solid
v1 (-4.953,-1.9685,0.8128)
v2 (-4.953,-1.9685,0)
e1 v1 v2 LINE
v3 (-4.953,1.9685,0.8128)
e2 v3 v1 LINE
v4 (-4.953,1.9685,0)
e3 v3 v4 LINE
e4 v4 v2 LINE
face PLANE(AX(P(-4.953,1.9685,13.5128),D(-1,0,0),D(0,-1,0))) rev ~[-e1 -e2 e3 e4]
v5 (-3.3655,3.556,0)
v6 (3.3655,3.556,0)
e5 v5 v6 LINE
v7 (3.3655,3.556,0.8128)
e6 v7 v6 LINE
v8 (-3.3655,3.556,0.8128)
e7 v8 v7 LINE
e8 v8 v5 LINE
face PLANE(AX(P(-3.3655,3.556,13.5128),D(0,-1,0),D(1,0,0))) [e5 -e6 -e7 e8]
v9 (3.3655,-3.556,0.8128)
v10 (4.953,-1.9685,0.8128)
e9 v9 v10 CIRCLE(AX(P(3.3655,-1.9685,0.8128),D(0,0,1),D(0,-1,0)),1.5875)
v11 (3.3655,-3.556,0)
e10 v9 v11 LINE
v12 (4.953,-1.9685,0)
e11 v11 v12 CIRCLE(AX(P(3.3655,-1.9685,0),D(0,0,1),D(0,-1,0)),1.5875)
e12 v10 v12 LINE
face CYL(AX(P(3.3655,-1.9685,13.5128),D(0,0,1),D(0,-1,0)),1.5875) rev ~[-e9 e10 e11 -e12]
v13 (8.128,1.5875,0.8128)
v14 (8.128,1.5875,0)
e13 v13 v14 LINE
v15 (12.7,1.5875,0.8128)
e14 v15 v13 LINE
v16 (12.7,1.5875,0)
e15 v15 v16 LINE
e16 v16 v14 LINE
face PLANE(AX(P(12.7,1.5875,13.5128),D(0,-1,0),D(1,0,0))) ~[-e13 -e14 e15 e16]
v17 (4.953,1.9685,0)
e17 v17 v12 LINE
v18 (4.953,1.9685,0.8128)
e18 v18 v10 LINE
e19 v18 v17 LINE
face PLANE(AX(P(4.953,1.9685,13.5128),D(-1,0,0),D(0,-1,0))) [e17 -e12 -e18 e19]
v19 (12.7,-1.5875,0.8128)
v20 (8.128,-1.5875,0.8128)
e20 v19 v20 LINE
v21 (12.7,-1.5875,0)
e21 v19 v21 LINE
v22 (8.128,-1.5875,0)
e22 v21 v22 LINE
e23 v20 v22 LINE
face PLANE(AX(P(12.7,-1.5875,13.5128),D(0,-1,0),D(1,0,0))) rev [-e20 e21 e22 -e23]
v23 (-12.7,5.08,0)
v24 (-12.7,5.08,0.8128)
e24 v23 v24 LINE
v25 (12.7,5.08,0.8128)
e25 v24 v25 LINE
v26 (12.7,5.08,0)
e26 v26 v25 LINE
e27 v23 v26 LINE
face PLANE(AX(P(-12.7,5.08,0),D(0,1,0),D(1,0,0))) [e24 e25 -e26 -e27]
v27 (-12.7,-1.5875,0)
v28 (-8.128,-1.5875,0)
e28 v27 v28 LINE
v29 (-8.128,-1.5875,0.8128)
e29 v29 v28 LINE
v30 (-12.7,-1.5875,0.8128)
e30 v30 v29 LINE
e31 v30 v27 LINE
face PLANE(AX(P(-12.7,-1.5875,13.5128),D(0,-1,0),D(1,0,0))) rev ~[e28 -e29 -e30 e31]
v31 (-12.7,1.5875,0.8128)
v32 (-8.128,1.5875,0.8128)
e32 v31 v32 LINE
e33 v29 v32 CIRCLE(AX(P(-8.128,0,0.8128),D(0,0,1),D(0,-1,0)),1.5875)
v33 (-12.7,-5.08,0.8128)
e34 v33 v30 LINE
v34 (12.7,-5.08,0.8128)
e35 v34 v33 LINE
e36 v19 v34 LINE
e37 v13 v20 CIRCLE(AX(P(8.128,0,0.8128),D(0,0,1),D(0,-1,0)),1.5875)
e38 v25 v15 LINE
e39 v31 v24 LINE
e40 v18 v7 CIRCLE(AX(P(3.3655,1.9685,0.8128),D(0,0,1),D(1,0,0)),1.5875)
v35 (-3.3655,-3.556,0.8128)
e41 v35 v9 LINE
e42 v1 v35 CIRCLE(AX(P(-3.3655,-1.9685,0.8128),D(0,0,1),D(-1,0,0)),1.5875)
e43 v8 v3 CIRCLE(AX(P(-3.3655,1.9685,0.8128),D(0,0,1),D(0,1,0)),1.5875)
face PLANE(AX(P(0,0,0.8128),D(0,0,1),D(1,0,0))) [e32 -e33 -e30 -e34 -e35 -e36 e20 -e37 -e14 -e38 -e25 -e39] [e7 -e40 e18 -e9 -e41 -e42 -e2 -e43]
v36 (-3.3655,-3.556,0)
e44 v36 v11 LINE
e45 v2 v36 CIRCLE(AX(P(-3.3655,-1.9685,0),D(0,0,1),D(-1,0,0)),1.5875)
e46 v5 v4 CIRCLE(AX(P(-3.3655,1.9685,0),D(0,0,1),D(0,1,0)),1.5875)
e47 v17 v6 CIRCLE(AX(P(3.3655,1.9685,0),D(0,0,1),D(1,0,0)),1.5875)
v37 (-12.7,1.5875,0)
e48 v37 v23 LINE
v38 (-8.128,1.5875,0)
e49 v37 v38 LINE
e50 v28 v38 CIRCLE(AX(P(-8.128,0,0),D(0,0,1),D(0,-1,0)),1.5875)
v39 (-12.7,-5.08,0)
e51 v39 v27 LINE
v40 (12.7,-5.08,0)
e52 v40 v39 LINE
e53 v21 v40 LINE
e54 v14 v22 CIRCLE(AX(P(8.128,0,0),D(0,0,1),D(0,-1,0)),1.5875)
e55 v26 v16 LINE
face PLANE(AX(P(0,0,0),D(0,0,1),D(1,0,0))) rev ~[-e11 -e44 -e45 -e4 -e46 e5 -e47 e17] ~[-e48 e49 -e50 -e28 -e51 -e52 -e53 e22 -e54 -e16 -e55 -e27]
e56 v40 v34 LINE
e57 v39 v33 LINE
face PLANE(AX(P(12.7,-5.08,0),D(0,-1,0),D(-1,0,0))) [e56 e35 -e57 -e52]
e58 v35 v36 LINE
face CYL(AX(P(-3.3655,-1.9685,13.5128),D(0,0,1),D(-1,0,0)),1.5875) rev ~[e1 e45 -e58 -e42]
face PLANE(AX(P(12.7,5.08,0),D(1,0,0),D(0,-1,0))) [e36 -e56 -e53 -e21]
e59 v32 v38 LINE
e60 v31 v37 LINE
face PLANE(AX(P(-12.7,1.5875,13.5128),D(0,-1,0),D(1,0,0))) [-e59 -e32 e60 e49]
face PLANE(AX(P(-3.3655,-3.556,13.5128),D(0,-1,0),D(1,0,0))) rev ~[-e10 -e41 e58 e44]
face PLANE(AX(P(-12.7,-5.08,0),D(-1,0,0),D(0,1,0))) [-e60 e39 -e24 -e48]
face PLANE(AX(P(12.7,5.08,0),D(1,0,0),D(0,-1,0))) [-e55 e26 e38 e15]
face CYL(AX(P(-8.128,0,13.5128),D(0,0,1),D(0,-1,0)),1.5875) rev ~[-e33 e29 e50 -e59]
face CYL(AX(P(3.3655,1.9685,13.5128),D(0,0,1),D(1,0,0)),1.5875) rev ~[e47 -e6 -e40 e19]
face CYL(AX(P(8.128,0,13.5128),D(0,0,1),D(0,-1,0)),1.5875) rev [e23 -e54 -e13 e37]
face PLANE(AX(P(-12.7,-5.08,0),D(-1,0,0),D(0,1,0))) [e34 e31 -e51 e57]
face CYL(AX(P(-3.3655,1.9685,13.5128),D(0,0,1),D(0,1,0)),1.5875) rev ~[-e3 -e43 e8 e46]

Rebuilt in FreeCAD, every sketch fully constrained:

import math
import FreeCAD as App
import Part
import Sketcher

V = App.Vector
Q = App.Units.Quantity


def add_polygon(sketch, points):
    """Adds a closed chain of lines whose ends are joined by coincident constraints."""
    first, n = sketch.GeometryCount, len(points)
    for a, b in zip(points, points[1:] + points[:1]):
        sketch.addGeometry(Part.LineSegment(App.Vector(*a, 0), App.Vector(*b, 0)), False)
    for i in range(n):
        sketch.addConstraint(Sketcher.Constraint("Coincident", first + i, 2, first + (i + 1) % n, 1))

doc = App.newDocument("Part")
body = doc.addObject("PartDesign::Body", "Body")

sketch1 = body.newObject("Sketcher::SketchObject", "Sketch")
sketch1.AttachmentSupport = (doc.getObject("XY_Plane"), [""])
sketch1.MapMode = "FlatFace"
add_polygon(sketch1, [(12.7, 5.08), (-12.7, 5.08), (-12.7, -5.08), (12.7, -5.08)])
sketch1.addConstraint(Sketcher.Constraint("Horizontal", 0))
sketch1.addConstraint(Sketcher.Constraint("Vertical", 1))
sketch1.addConstraint(Sketcher.Constraint("Horizontal", 2))
sketch1.addConstraint(Sketcher.Constraint("Vertical", 3))
sketch1.addConstraint(Sketcher.Constraint("Symmetric", 0, 2, 2, 2, -1, 1))
sketch1.addConstraint(Sketcher.Constraint("DistanceX", 0, 2, 0, 1, Q("1 in")))
sketch1.addConstraint(Sketcher.Constraint("DistanceY", 1, 2, 1, 1, Q("0.4 in")))
pad1 = body.newObject("PartDesign::Pad", "Pad")
pad1.Profile = sketch1
pad1.Length = Q("0.032 in")

sketch2 = body.newObject("Sketcher::SketchObject", "Sketch001")
sketch2.AttachmentSupport = (doc.getObject("XY_Plane"), [""])
sketch2.MapMode = "FlatFace"
sketch2.AttachmentOffset = App.Placement(V(0, 0, 0.532 * 25.4), App.Rotation())
sketch2.addGeometry(Part.LineSegment(V(3.3655, 3.556, 0), V(-3.3655, 3.556, 0)), False)
sketch2.addGeometry(Part.ArcOfCircle(Part.Circle(V(-3.3655, 1.9685, 0), V(0, 0, 1), 1.5875), math.radians(90), math.radians(180)), False)
sketch2.addGeometry(Part.LineSegment(V(-4.953, 1.9685, 0), V(-4.953, -1.9685, 0)), False)
sketch2.addGeometry(Part.ArcOfCircle(Part.Circle(V(-3.3655, -1.9685, 0), V(0, 0, 1), 1.5875), math.radians(180), math.radians(270)), False)
sketch2.addGeometry(Part.LineSegment(V(-3.3655, -3.556, 0), V(3.3655, -3.556, 0)), False)
sketch2.addGeometry(Part.ArcOfCircle(Part.Circle(V(3.3655, -1.9685, 0), V(0, 0, 1), 1.5875), math.radians(-90), math.radians(0)), False)
sketch2.addGeometry(Part.LineSegment(V(4.953, -1.9685, 0), V(4.953, 1.9685, 0)), False)
sketch2.addGeometry(Part.ArcOfCircle(Part.Circle(V(3.3655, 1.9685, 0), V(0, 0, 1), 1.5875), math.radians(0), math.radians(90)), False)
sketch2.addConstraint(Sketcher.Constraint("Tangent", 0, 2, 1, 1))
sketch2.addConstraint(Sketcher.Constraint("Tangent", 1, 2, 2, 1))
sketch2.addConstraint(Sketcher.Constraint("Tangent", 2, 2, 3, 1))
sketch2.addConstraint(Sketcher.Constraint("Tangent", 3, 2, 4, 1))
sketch2.addConstraint(Sketcher.Constraint("Tangent", 4, 2, 5, 1))
sketch2.addConstraint(Sketcher.Constraint("Tangent", 5, 2, 6, 1))
sketch2.addConstraint(Sketcher.Constraint("Tangent", 6, 2, 7, 1))
sketch2.addConstraint(Sketcher.Constraint("Tangent", 7, 2, 0, 1))
sketch2.addConstraint(Sketcher.Constraint("Horizontal", 0))
sketch2.addConstraint(Sketcher.Constraint("Vertical", 2))
sketch2.addConstraint(Sketcher.Constraint("Horizontal", 4))
sketch2.addConstraint(Sketcher.Constraint("Vertical", 6))
sketch2.addConstraint(Sketcher.Constraint("Equal", 1, 3))
sketch2.addConstraint(Sketcher.Constraint("Equal", 3, 5))
sketch2.addConstraint(Sketcher.Constraint("Equal", 5, 7))
sketch2.addConstraint(Sketcher.Constraint("Symmetric", 1, 3, 5, 3, -1, 1))
sketch2.addConstraint(Sketcher.Constraint("Radius", 1, Q("0.0625 in")))
sketch2.addConstraint(Sketcher.Constraint("DistanceX", 0, 2, 0, 1, Q("0.265 in")))
sketch2.addConstraint(Sketcher.Constraint("DistanceY", 2, 2, 2, 1, Q("0.155 in")))
pocket1 = body.newObject("PartDesign::Pocket", "Pocket")
pocket1.Profile = sketch2
pocket1.Length = Q("1 in")

sketch3 = body.newObject("Sketcher::SketchObject", "Sketch002")
sketch3.AttachmentSupport = (doc.getObject("XY_Plane"), [""])
sketch3.MapMode = "FlatFace"
sketch3.AttachmentOffset = App.Placement(V(0, 0, 0.532 * 25.4), App.Rotation())
sketch3.addGeometry(Part.LineSegment(V(-8.128, 1.5875, 0), V(-12.7, 1.5875, 0)), False)
sketch3.addGeometry(Part.LineSegment(V(-12.7, 1.5875, 0), V(-12.7, -1.5875, 0)), False)
sketch3.addGeometry(Part.LineSegment(V(-12.7, -1.5875, 0), V(-8.128, -1.5875, 0)), False)
sketch3.addGeometry(Part.ArcOfCircle(Part.Circle(V(-8.128, 0, 0), V(0, 0, 1), 1.5875), math.radians(-90), math.radians(90)), False)
sketch3.addConstraint(Sketcher.Constraint("Coincident", 0, 2, 1, 1))
sketch3.addConstraint(Sketcher.Constraint("Coincident", 1, 2, 2, 1))
sketch3.addConstraint(Sketcher.Constraint("Tangent", 2, 2, 3, 1))
sketch3.addConstraint(Sketcher.Constraint("Tangent", 3, 2, 0, 1))
sketch3.addConstraint(Sketcher.Constraint("Horizontal", 0))
sketch3.addConstraint(Sketcher.Constraint("Vertical", 1))
sketch3.addConstraint(Sketcher.Constraint("Horizontal", 2))
sketch3.addConstraint(Sketcher.Constraint("PointOnObject", 3, 3, -1))
sketch3.addConstraint(Sketcher.Constraint("Radius", 3, Q("0.0625 in")))
sketch3.addConstraint(Sketcher.Constraint("DistanceX", 0, 2, 0, 1, Q("0.18 in")))
sketch3.addConstraint(Sketcher.Constraint("DistanceX", 0, 2, -1, 1, Q("0.5 in")))
pocket2 = body.newObject("PartDesign::Pocket", "Pocket001")
pocket2.Profile = sketch3
pocket2.Length = Q("1 in")
doc.recompute()

mirrored = body.newObject("PartDesign::Mirrored", "Mirrored")
mirrored.Originals = [pocket2]
mirrored.MirrorPlane = (doc.getObject("YZ_Plane"), [""])
body.Tip = mirrored

doc.recompute()
